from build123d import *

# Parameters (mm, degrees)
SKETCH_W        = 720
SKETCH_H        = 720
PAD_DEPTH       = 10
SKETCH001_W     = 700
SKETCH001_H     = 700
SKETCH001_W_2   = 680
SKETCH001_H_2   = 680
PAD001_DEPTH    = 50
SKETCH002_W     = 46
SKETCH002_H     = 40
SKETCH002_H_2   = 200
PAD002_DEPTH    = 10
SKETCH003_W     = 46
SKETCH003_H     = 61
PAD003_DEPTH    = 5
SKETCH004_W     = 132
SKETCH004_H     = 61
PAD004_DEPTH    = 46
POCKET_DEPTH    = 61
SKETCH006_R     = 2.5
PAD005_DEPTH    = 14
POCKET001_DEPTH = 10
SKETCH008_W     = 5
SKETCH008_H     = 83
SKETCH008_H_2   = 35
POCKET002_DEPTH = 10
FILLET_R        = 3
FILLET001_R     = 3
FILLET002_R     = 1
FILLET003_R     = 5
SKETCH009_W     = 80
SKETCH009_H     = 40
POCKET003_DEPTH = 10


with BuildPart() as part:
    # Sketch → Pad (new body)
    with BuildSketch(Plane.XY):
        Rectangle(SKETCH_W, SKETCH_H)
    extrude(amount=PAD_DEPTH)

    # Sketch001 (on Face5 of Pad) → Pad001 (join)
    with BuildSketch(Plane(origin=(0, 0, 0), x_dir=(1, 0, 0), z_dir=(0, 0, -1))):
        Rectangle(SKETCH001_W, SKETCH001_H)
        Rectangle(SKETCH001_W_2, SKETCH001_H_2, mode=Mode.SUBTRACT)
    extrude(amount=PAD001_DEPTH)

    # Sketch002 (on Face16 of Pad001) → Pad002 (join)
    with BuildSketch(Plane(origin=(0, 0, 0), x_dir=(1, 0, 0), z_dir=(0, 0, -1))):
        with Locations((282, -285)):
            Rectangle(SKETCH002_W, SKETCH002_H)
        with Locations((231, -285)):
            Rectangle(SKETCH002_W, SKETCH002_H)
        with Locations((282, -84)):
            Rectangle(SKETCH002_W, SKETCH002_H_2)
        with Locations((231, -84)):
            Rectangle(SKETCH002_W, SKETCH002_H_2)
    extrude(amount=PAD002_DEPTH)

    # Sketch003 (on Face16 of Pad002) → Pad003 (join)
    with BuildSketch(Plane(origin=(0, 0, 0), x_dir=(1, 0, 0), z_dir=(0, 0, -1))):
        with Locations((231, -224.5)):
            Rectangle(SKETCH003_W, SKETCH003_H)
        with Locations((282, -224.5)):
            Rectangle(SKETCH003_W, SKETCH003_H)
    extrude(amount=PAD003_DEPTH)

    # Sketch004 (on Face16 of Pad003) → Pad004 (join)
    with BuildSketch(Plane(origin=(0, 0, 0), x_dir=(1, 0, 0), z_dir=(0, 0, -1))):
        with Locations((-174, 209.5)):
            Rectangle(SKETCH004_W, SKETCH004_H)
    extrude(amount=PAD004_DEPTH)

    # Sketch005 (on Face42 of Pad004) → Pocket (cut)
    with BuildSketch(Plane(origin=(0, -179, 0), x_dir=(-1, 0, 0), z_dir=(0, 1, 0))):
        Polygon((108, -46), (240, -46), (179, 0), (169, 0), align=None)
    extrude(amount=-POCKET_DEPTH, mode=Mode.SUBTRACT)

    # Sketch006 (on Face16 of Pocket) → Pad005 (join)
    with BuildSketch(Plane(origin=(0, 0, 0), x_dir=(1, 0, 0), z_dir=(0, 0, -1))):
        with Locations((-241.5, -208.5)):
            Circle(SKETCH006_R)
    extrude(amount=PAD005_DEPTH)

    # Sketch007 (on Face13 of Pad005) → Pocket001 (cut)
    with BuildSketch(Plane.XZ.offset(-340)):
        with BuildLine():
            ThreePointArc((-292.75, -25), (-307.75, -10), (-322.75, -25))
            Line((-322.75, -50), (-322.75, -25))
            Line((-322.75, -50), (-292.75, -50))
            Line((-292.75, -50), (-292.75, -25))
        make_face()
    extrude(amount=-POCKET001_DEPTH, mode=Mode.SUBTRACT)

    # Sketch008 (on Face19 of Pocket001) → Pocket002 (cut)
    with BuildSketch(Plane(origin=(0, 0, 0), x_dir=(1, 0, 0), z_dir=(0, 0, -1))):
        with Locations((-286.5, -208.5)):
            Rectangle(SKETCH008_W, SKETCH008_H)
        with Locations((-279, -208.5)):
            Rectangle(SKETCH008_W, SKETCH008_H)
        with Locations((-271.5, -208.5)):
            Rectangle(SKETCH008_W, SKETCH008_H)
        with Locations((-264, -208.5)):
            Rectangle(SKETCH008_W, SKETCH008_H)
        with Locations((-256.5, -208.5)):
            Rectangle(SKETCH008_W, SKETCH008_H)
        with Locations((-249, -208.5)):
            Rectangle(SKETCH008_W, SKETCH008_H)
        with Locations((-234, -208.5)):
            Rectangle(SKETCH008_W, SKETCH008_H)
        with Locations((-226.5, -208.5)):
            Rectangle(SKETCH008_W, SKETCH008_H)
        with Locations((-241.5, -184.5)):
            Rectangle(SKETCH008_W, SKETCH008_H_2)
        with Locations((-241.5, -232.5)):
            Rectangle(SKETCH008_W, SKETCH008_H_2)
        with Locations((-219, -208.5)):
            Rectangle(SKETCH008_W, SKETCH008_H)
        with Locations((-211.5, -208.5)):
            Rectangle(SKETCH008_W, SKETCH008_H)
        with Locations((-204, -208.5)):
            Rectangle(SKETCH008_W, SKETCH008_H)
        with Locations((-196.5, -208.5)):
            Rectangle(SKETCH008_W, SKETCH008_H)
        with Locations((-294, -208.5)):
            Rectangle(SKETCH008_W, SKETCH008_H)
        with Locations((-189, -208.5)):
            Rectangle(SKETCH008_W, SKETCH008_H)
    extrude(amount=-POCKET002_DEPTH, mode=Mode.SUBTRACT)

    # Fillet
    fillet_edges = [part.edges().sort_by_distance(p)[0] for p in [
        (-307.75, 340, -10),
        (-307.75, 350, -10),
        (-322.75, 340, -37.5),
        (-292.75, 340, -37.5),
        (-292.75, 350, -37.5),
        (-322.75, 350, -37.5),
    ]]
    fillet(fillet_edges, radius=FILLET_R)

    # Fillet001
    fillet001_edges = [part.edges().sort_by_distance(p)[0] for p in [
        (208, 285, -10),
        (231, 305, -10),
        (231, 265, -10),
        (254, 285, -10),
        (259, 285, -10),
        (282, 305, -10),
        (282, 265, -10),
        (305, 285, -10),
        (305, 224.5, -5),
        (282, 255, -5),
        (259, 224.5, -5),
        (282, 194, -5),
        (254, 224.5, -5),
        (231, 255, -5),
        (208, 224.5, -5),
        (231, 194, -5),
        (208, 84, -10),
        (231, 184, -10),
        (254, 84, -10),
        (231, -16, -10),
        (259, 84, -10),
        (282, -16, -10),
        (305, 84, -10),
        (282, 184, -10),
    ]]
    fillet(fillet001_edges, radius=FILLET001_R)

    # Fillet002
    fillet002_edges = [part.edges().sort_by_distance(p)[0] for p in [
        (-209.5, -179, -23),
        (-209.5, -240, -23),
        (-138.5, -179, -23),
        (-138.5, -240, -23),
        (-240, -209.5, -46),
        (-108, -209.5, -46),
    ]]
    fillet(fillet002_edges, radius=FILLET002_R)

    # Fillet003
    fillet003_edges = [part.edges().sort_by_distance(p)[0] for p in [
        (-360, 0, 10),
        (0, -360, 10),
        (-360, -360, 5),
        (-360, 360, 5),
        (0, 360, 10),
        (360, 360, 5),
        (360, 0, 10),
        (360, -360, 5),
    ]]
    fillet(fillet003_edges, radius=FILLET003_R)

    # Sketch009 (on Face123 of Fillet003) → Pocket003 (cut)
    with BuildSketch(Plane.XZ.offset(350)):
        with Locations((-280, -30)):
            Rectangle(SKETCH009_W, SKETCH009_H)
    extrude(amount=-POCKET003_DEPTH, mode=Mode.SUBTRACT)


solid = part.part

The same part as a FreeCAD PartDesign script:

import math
import FreeCAD as App
import Part
import Sketcher


def edges_at(feature, points):
    """Names of the edges that pass closest to the given points."""
    edges = feature.Shape.Edges
    near = lambda p: min(range(len(edges)), key=lambda i: edges[i].distToShape(Part.Vertex(*p))[0])
    return sorted({f"Edge{near(p) + 1}" for p in points})


def add_polygon(sketch, points):
    """Adds a closed chain of lines whose ends are joined by coincident constraints."""
    first, n = sketch.GeometryCount, len(points)
    for a, b in zip(points, points[1:] + points[:1]):
        sketch.addGeometry(Part.LineSegment(App.Vector(*a, 0), App.Vector(*b, 0)), False)
    for i in range(n):
        sketch.addConstraint(Sketcher.Constraint("Coincident", first + i, 2, first + (i + 1) % n, 1))

doc = App.newDocument("Part")
params = doc.addObject("Spreadsheet::Sheet", "Params")
for row, (alias, value) in enumerate([
    ("sketch1_width", "720 mm"),
    ("pad1_length", "10 mm"),
    ("sketch2_width", "700 mm"),
    ("sketch2_width2", "680 mm"),
    ("pad2_length", "50 mm"),
    ("sketch3_width", "46 mm"),
    ("sketch3_height", "40 mm"),
    ("sketch3_height2", "200 mm"),
    ("pad3_length", "10 mm"),
    ("sketch4_width", "46 mm"),
    ("sketch4_height", "61 mm"),
    ("pad4_length", "5 mm"),
    ("sketch5_width", "132 mm"),
    ("sketch5_height", "61 mm"),
    ("pad5_length", "46 mm"),
    ("sketch6_width", "132 mm"),
    ("sketch6_width2", "10 mm"),
    ("pocket1_length", "61 mm"),
    ("sketch7_diameter", "5 mm"),
    ("pad6_length", "14 mm"),
    ("sketch8_radius", "15 mm"),
    ("sketch8_height", "25 mm"),
    ("pocket2_length", "10 mm"),
    ("sketch9_width", "5 mm"),
    ("sketch9_height", "83 mm"),
    ("sketch9_height2", "35 mm"),
    ("pocket3_length", "10 mm"),
    ("fillet_radius", "3 mm"),
    ("fillet2_radius", "3 mm"),
    ("fillet3_radius", "1 mm"),
    ("fillet4_radius", "5 mm"),
    ("sketch10_width", "80 mm"),
    ("sketch10_height", "40 mm"),
    ("pocket4_length", "10 mm"),
], start=1):
    params.set(f"A{row}", alias)
    params.set(f"B{row}", "=" + value)
    params.setAlias(f"B{row}", alias)

body = doc.addObject("PartDesign::Body", "Body")

# Sketch on XY plane
sketch1 = doc.addObject("Sketcher::SketchObject", "Sketch")
body.addObject(sketch1)
sketch1.AttachmentSupport = (doc.XY_Plane, [""])
sketch1.MapMode = "FlatFace"
add_polygon(sketch1, [(-360, 360), (-360, -360), (360, -360), (360, 360)])  # lines 0-3
sketch1.addConstraint([
    Sketcher.Constraint("Vertical", 0),
    Sketcher.Constraint("Horizontal", 1),
    Sketcher.Constraint("Vertical", 2),
    Sketcher.Constraint("Horizontal", 3),
    Sketcher.Constraint("Symmetric", 0, 2, 2, 2, -1, 1),
    Sketcher.Constraint("Equal", 3, 0),
    Sketcher.Constraint("DistanceX", 1, 1, 1, 2, 720.0),
])
sketch1.setExpression("Constraints[10]", "Params.sketch1_width")
pad1 = doc.addObject("PartDesign::Pad", "Pad")
body.addObject(pad1)
pad1.Profile = sketch1
pad1.setExpression("Length", "Params.pad1_length")

# Sketch on XY plane
sketch2 = doc.addObject("Sketcher::SketchObject", "Sketch001")
body.addObject(sketch2)
sketch2.AttachmentSupport = (doc.XY_Plane, [""])
sketch2.MapMode = "FlatFace"
add_polygon(sketch2, [(-350, -350), (-350, 350), (350, 350), (350, -350)])  # lines 0-3
add_polygon(sketch2, [(340, 340), (-340, 340), (-340, -340), (340, -340)])  # lines 4-7
sketch2.addConstraint([
    Sketcher.Constraint("Vertical", 0),
    Sketcher.Constraint("Horizontal", 1),
    Sketcher.Constraint("Vertical", 2),
    Sketcher.Constraint("Horizontal", 3),
    Sketcher.Constraint("Horizontal", 4),
    Sketcher.Constraint("Vertical", 5),
    Sketcher.Constraint("Horizontal", 6),
    Sketcher.Constraint("Vertical", 7),
    Sketcher.Constraint("Symmetric", 0, 2, 2, 2, -1, 1),
    Sketcher.Constraint("Symmetric", 4, 2, 6, 2, -1, 1),
    Sketcher.Constraint("Equal", 3, 0),
    Sketcher.Constraint("Equal", 6, 5),
    Sketcher.Constraint("DistanceX", 1, 1, 1, 2, 700.0),
    Sketcher.Constraint("DistanceX", 4, 2, 4, 1, 680.0),
])
sketch2.setExpression("Constraints[20]", "Params.sketch2_width")
sketch2.setExpression("Constraints[21]", "Params.sketch2_width2")
pad2 = doc.addObject("PartDesign::Pad", "Pad001")
body.addObject(pad2)
pad2.Profile = sketch2
pad2.setExpression("Length", "Params.pad2_length")
pad2.Reversed = True

# Sketch on XY plane
sketch3 = doc.addObject("Sketcher::SketchObject", "Sketch002")
body.addObject(sketch3)
sketch3.AttachmentSupport = (doc.XY_Plane, [""])
sketch3.MapMode = "FlatFace"
add_polygon(sketch3, [(259, 265), (259, 305), (305, 305), (305, 265)])  # lines 0-3
add_polygon(sketch3, [(208, 265), (208, 305), (254, 305), (254, 265)])  # lines 4-7
add_polygon(sketch3, [(259, -16), (259, 184), (305, 184), (305, -16)])  # lines 8-11
add_polygon(sketch3, [(208, -16), (208, 184), (254, 184), (254, -16)])  # lines 12-15
sketch3.addConstraint([
    Sketcher.Constraint("Vertical", 0),
    Sketcher.Constraint("Horizontal", 1),
    Sketcher.Constraint("Vertical", 2),
    Sketcher.Constraint("Horizontal", 3),
    Sketcher.Constraint("Vertical", 4),
    Sketcher.Constraint("Horizontal", 5),
    Sketcher.Constraint("Vertical", 6),
    Sketcher.Constraint("Horizontal", 7),
    Sketcher.Constraint("Vertical", 8),
    Sketcher.Constraint("Horizontal", 9),
    Sketcher.Constraint("Vertical", 10),
    Sketcher.Constraint("Horizontal", 11),
    Sketcher.Constraint("Vertical", 12),
    Sketcher.Constraint("Horizontal", 13),
    Sketcher.Constraint("Vertical", 14),
    Sketcher.Constraint("Horizontal", 15),
    Sketcher.Constraint("Horizontal", 1, 2, 4, 2),
    Sketcher.Constraint("Horizontal", 3, 2, 6, 2),
    Sketcher.Constraint("Horizontal", 9, 2, 12, 2),
    Sketcher.Constraint("Horizontal", 11, 2, 14, 2),
    Sketcher.Constraint("Vertical", 3, 2, 8, 2),
    Sketcher.Constraint("Vertical", 2, 2, 9, 2),
    Sketcher.Constraint("Vertical", 7, 2, 12, 2),
    Sketcher.Constraint("Vertical", 6, 2, 13, 2),
    Sketcher.Constraint("Equal", 3, 5),
    Sketcher.Constraint("DistanceX", 1, 1, 1, 2, 46.0),
    Sketcher.Constraint("DistanceY", 0, 1, 0, 2, 40.0),
    Sketcher.Constraint("DistanceY", 8, 1, 8, 2, 200.0),
    Sketcher.Constraint("DistanceX", -1, 1, 0, 2, 259.0),
    Sketcher.Constraint("DistanceY", -1, 1, 0, 2, 305.0),
    Sketcher.Constraint("DistanceX", -1, 1, 4, 2, 208.0),
    Sketcher.Constraint("DistanceY", -1, 1, 8, 2, 184.0),
])
sketch3.setExpression("Constraints[41]", "Params.sketch3_width")
sketch3.setExpression("Constraints[42]", "Params.sketch3_height")
sketch3.setExpression("Constraints[43]", "Params.sketch3_height2")
pad3 = doc.addObject("PartDesign::Pad", "Pad002")
body.addObject(pad3)
pad3.Profile = sketch3
pad3.setExpression("Length", "Params.pad3_length")
pad3.Reversed = True

# Sketch on XY plane
sketch4 = doc.addObject("Sketcher::SketchObject", "Sketch003")
body.addObject(sketch4)
sketch4.AttachmentSupport = (doc.XY_Plane, [""])
sketch4.MapMode = "FlatFace"
add_polygon(sketch4, [(208, 194), (208, 255), (254, 255), (254, 194)])  # lines 0-3
add_polygon(sketch4, [(259, 194), (259, 255), (305, 255), (305, 194)])  # lines 4-7
sketch4.addConstraint([
    Sketcher.Constraint("Vertical", 0),
    Sketcher.Constraint("Horizontal", 1),
    Sketcher.Constraint("Vertical", 2),
    Sketcher.Constraint("Horizontal", 3),
    Sketcher.Constraint("Vertical", 4),
    Sketcher.Constraint("Horizontal", 5),
    Sketcher.Constraint("Vertical", 6),
    Sketcher.Constraint("Horizontal", 7),
    Sketcher.Constraint("Horizontal", 1, 2, 4, 2),
    Sketcher.Constraint("Horizontal", 3, 2, 6, 2),
    Sketcher.Constraint("Equal", 3, 5),
    Sketcher.Constraint("DistanceX", 1, 1, 1, 2, 46.0),
    Sketcher.Constraint("DistanceY", 0, 1, 0, 2, 61.0),
    Sketcher.Constraint("DistanceX", -1, 1, 0, 2, 208.0),
    Sketcher.Constraint("DistanceY", -1, 1, 0, 2, 255.0),
    Sketcher.Constraint("DistanceX", -1, 1, 4, 2, 259.0),
])
sketch4.setExpression("Constraints[19]", "Params.sketch4_width")
sketch4.setExpression("Constraints[20]", "Params.sketch4_height")
pad4 = doc.addObject("PartDesign::Pad", "Pad003")
body.addObject(pad4)
pad4.Profile = sketch4
pad4.setExpression("Length", "Params.pad4_length")
pad4.Reversed = True

# Sketch on XY plane
sketch5 = doc.addObject("Sketcher::SketchObject", "Sketch004")
body.addObject(sketch5)
sketch5.AttachmentSupport = (doc.XY_Plane, [""])
sketch5.MapMode = "FlatFace"
add_polygon(sketch5, [(-240, -240), (-240, -179), (-108, -179), (-108, -240)])  # lines 0-3
sketch5.addConstraint([
    Sketcher.Constraint("Vertical", 0),
    Sketcher.Constraint("Horizontal", 1),
    Sketcher.Constraint("Vertical", 2),
    Sketcher.Constraint("Horizontal", 3),
    Sketcher.Constraint("DistanceX", 1, 1, 1, 2, 132.0),
    Sketcher.Constraint("DistanceY", 0, 1, 0, 2, 61.0),
    Sketcher.Constraint("DistanceX", 0, 2, -1, 1, 240.0),
    Sketcher.Constraint("DistanceY", 0, 2, -1, 1, 179.0),
])
sketch5.setExpression("Constraints[8]", "Params.sketch5_width")
sketch5.setExpression("Constraints[9]", "Params.sketch5_height")
pad5 = doc.addObject("PartDesign::Pad", "Pad004")
body.addObject(pad5)
pad5.Profile = sketch5
pad5.setExpression("Length", "Params.pad5_length")
pad5.Reversed = True

# Sketch on XZ plane
sketch6 = doc.addObject("Sketcher::SketchObject", "Sketch005")
body.addObject(sketch6)
sketch6.AttachmentSupport = (doc.XZ_Plane, [""])
sketch6.MapMode = "FlatFace"
sketch6.AttachmentOffset = App.Placement(App.Vector(0, 0, 179), App.Rotation())
add_polygon(sketch6, [(-108, -46), (-240, -46), (-179, 0), (-169, 0)])  # lines 0-3
sketch6.addConstraint([
    Sketcher.Constraint("Horizontal", 0),
    Sketcher.Constraint("Horizontal", 2),
    Sketcher.Constraint("PointOnObject", 1, 2, -1),
    Sketcher.Constraint("Equal", 1, 3),
    Sketcher.Constraint("DistanceX", 0, 2, 0, 1, 132.0),
    Sketcher.Constraint("DistanceX", 2, 1, 2, 2, 10.0),
    Sketcher.Constraint("DistanceX", 0, 2, -1, 1, 240.0),
    Sketcher.Constraint("DistanceY", 0, 2, -1, 1, 46.0),
])
sketch6.setExpression("Constraints[8]", "Params.sketch6_width")
sketch6.setExpression("Constraints[9]", "Params.sketch6_width2")
pocket1 = doc.addObject("PartDesign::Pocket", "Pocket")
body.addObject(pocket1)
pocket1.Profile = sketch6
pocket1.setExpression("Length", "Params.pocket1_length")
pocket1.Reversed = True

# Sketch on XY plane
sketch7 = doc.addObject("Sketcher::SketchObject", "Sketch006")
body.addObject(sketch7)
sketch7.AttachmentSupport = (doc.XY_Plane, [""])
sketch7.MapMode = "FlatFace"
sketch7.addGeometry(Part.Circle(App.Vector(-241.5, 208.5, 0), App.Vector(0, 0, 1), 2.5), False)
sketch7.addConstraint([
    Sketcher.Constraint("Diameter", 0, 5.0),
    Sketcher.Constraint("DistanceX", 0, 3, -1, 1, 241.5),
    Sketcher.Constraint("DistanceY", -1, 1, 0, 3, 208.5),
])
sketch7.setExpression("Constraints[0]", "Params.sketch7_diameter")
pad6 = doc.addObject("PartDesign::Pad", "Pad005")
body.addObject(pad6)
pad6.Profile = sketch7
pad6.setExpression("Length", "Params.pad6_length")
pad6.Reversed = True

# Sketch on XZ plane
sketch8 = doc.addObject("Sketcher::SketchObject", "Sketch007")
body.addObject(sketch8)
sketch8.AttachmentSupport = (doc.XZ_Plane, [""])
sketch8.MapMode = "FlatFace"
sketch8.AttachmentOffset = App.Placement(App.Vector(0, 0, -340), App.Rotation())
sketch8.addGeometry([
    Part.ArcOfCircle(Part.Circle(App.Vector(-308, -25, 0), App.Vector(0, 0, 1), 15), math.radians(0), math.radians(180)),
    Part.LineSegment(App.Vector(-323, -25, 0), App.Vector(-323, -50, 0)),
    Part.LineSegment(App.Vector(-323, -50, 0), App.Vector(-293, -50, 0)),
    Part.LineSegment(App.Vector(-293, -50, 0), App.Vector(-293, -25, 0)),
], False)
sketch8.addConstraint([
    Sketcher.Constraint("Tangent", 0, 2, 1, 1),
    Sketcher.Constraint("Coincident", 1, 2, 2, 1),
    Sketcher.Constraint("Coincident", 2, 2, 3, 1),
    Sketcher.Constraint("Tangent", 3, 2, 0, 1),
    Sketcher.Constraint("Vertical", 1),
    Sketcher.Constraint("Horizontal", 2),
    Sketcher.Constraint("Vertical", 3),
    Sketcher.Constraint("Radius", 0, 15.0),
    Sketcher.Constraint("DistanceY", 1, 2, 1, 1, 25.0),
    Sketcher.Constraint("DistanceY", 0, 3, -1, 1, 25.0),
    Sketcher.Constraint("DistanceX", 0, 3, -1, 1, 307.75),
])
sketch8.setExpression("Constraints[7]", "Params.sketch8_radius")
sketch8.setExpression("Constraints[8]", "Params.sketch8_height")
pocket2 = doc.addObject("PartDesign::Pocket", "Pocket001")
body.addObject(pocket2)
pocket2.Profile = sketch8
pocket2.setExpression("Length", "Params.pocket2_length")

# Sketch on XY plane
sketch9 = doc.addObject("Sketcher::SketchObject", "Sketch008")
body.addObject(sketch9)
sketch9.AttachmentSupport = (doc.XY_Plane, [""])
sketch9.MapMode = "FlatFace"
add_polygon(sketch9, [(-289, 167), (-289, 250), (-284, 250), (-284, 167)])  # lines 0-3
add_polygon(sketch9, [(-282, 167), (-282, 250), (-276, 250), (-276, 167)])  # lines 4-7
add_polygon(sketch9, [(-274, 167), (-274, 250), (-269, 250), (-269, 167)])  # lines 8-11
add_polygon(sketch9, [(-266, 167), (-266, 250), (-262, 250), (-262, 167)])  # lines 12-15
add_polygon(sketch9, [(-259, 167), (-259, 250), (-254, 250), (-254, 167)])  # lines 16-19
add_polygon(sketch9, [(-252, 167), (-252, 250), (-246, 250), (-246, 167)])  # lines 20-23
add_polygon(sketch9, [(-236, 167), (-236, 250), (-232, 250), (-232, 167)])  # lines 24-27
add_polygon(sketch9, [(-229, 167), (-229, 250), (-224, 250), (-224, 167)])  # lines 28-31
add_polygon(sketch9, [(-244, 167), (-244, 202), (-239, 202), (-239, 167)])  # lines 32-35
add_polygon(sketch9, [(-244, 215), (-244, 250), (-239, 250), (-239, 215)])  # lines 36-39
add_polygon(sketch9, [(-222, 167), (-222, 250), (-216, 250), (-216, 167)])  # lines 40-43
add_polygon(sketch9, [(-214, 167), (-214, 250), (-209, 250), (-209, 167)])  # lines 44-47
add_polygon(sketch9, [(-206, 167), (-206, 250), (-202, 250), (-202, 167)])  # lines 48-51
add_polygon(sketch9, [(-199, 167), (-199, 250), (-194, 250), (-194, 167)])  # lines 52-55
add_polygon(sketch9, [(-296, 167), (-296, 250), (-292, 250), (-292, 167)])  # lines 56-59
add_polygon(sketch9, [(-192, 167), (-192, 250), (-186, 250), (-186, 167)])  # lines 60-63
sketch9.addConstraint([
    Sketcher.Constraint("Vertical", 0),
    Sketcher.Constraint("Horizontal", 1),
    Sketcher.Constraint("Vertical", 2),
    Sketcher.Constraint("Horizontal", 3),
    Sketcher.Constraint("Vertical", 4),
    Sketcher.Constraint("Horizontal", 5),
    Sketcher.Constraint("Vertical", 6),
    Sketcher.Constraint("Horizontal", 7),
    Sketcher.Constraint("Vertical", 8),
    Sketcher.Constraint("Horizontal", 9),
    Sketcher.Constraint("Vertical", 10),
    Sketcher.Constraint("Horizontal", 11),
    Sketcher.Constraint("Vertical", 12),
    Sketcher.Constraint("Horizontal", 13),
    Sketcher.Constraint("Vertical", 14),
    Sketcher.Constraint("Horizontal", 15),
    Sketcher.Constraint("Vertical", 16),
    Sketcher.Constraint("Horizontal", 17),
    Sketcher.Constraint("Vertical", 18),
    Sketcher.Constraint("Horizontal", 19),
    Sketcher.Constraint("Vertical", 20),
    Sketcher.Constraint("Horizontal", 21),
    Sketcher.Constraint("Vertical", 22),
    Sketcher.Constraint("Horizontal", 23),
    Sketcher.Constraint("Vertical", 24),
    Sketcher.Constraint("Horizontal", 25),
    Sketcher.Constraint("Vertical", 26),
    Sketcher.Constraint("Horizontal", 27),
    Sketcher.Constraint("Vertical", 28),
    Sketcher.Constraint("Horizontal", 29),
    Sketcher.Constraint("Vertical", 30),
    Sketcher.Constraint("Horizontal", 31),
    Sketcher.Constraint("Vertical", 32),
    Sketcher.Constraint("Horizontal", 33),
    Sketcher.Constraint("Vertical", 34),
    Sketcher.Constraint("Horizontal", 35),
    Sketcher.Constraint("Vertical", 36),
    Sketcher.Constraint("Horizontal", 37),
    Sketcher.Constraint("Vertical", 38),
    Sketcher.Constraint("Horizontal", 39),
    Sketcher.Constraint("Vertical", 40),
    Sketcher.Constraint("Horizontal", 41),
    Sketcher.Constraint("Vertical", 42),
    Sketcher.Constraint("Horizontal", 43),
    Sketcher.Constraint("Vertical", 44),
    Sketcher.Constraint("Horizontal", 45),
    Sketcher.Constraint("Vertical", 46),
    Sketcher.Constraint("Horizontal", 47),
    Sketcher.Constraint("Vertical", 48),
    Sketcher.Constraint("Horizontal", 49),
    Sketcher.Constraint("Vertical", 50),
    Sketcher.Constraint("Horizontal", 51),
    Sketcher.Constraint("Vertical", 52),
    Sketcher.Constraint("Horizontal", 53),
    Sketcher.Constraint("Vertical", 54),
    Sketcher.Constraint("Horizontal", 55),
    Sketcher.Constraint("Vertical", 56),
    Sketcher.Constraint("Horizontal", 57),
    Sketcher.Constraint("Vertical", 58),
    Sketcher.Constraint("Horizontal", 59),
    Sketcher.Constraint("Vertical", 60),
    Sketcher.Constraint("Horizontal", 61),
    Sketcher.Constraint("Vertical", 62),
    Sketcher.Constraint("Horizontal", 63),
    Sketcher.Constraint("Horizontal", 1, 2, 4, 2),
    Sketcher.Constraint("Horizontal", 3, 2, 6, 2),
    Sketcher.Constraint("Horizontal", 5, 2, 8, 2),
    Sketcher.Constraint("Horizontal", 7, 2, 10, 2),
    Sketcher.Constraint("Horizontal", 9, 2, 12, 2),
    Sketcher.Constraint("Horizontal", 11, 2, 14, 2),
    Sketcher.Constraint("Horizontal", 13, 2, 16, 2),
    Sketcher.Constraint("Horizontal", 15, 2, 18, 2),
    Sketcher.Constraint("Horizontal", 17, 2, 20, 2),
    Sketcher.Constraint("Horizontal", 19, 2, 22, 2),
    Sketcher.Constraint("Horizontal", 21, 2, 24, 2),
    Sketcher.Constraint("Horizontal", 23, 2, 26, 2),
    Sketcher.Constraint("Horizontal", 25, 2, 28, 2),
    Sketcher.Constraint("Horizontal", 27, 2, 30, 2),
    Sketcher.Constraint("Horizontal", 31, 2, 34, 2),
    Sketcher.Constraint("Horizontal", 29, 2, 36, 2),
    Sketcher.Constraint("Horizontal", 37, 2, 40, 2),
    Sketcher.Constraint("Horizontal", 35, 2, 42, 2),
    Sketcher.Constraint("Horizontal", 41, 2, 44, 2),
    Sketcher.Constraint("Horizontal", 43, 2, 46, 2),
    Sketcher.Constraint("Horizontal", 45, 2, 48, 2),
    Sketcher.Constraint("Horizontal", 47, 2, 50, 2),
    Sketcher.Constraint("Horizontal", 49, 2, 52, 2),
    Sketcher.Constraint("Horizontal", 51, 2, 54, 2),
    Sketcher.Constraint("Horizontal", 53, 2, 56, 2),
    Sketcher.Constraint("Horizontal", 55, 2, 58, 2),
    Sketcher.Constraint("Horizontal", 57, 2, 60, 2),
    Sketcher.Constraint("Horizontal", 59, 2, 62, 2),
    Sketcher.Constraint("Vertical", 35, 2, 36, 2),
    Sketcher.Constraint("Vertical", 34, 2, 37, 2),
    Sketcher.Constraint("Equal", 3, 5),
    Sketcher.Constraint("Equal", 7, 9),
    Sketcher.Constraint("Equal", 11, 13),
    Sketcher.Constraint("Equal", 15, 17),
    Sketcher.Constraint("Equal", 19, 21),
    Sketcher.Constraint("Equal", 23, 25),
    Sketcher.Constraint("Equal", 27, 29),
    Sketcher.Constraint("Equal", 31, 33),
    Sketcher.Constraint("Equal", 39, 41),
    Sketcher.Constraint("Equal", 43, 45),
    Sketcher.Constraint("Equal", 47, 49),
    Sketcher.Constraint("Equal", 51, 53),
    Sketcher.Constraint("Equal", 55, 57),
    Sketcher.Constraint("Equal", 59, 61),
    Sketcher.Constraint("Equal", 34, 36),
    Sketcher.Constraint("DistanceX", 1, 1, 1, 2, 5.0),
    Sketcher.Constraint("DistanceY", 0, 1, 0, 2, 83.0),
    Sketcher.Constraint("DistanceY", 32, 1, 32, 2, 35.0),
    Sketcher.Constraint("DistanceX", 0, 2, -1, 1, 289.0),
    Sketcher.Constraint("DistanceY", -1, 1, 0, 2, 250.0),
    Sketcher.Constraint("DistanceX", 8, 2, -1, 1, 274.0),
    Sketcher.Constraint("DistanceX", 16, 2, -1, 1, 259.0),
    Sketcher.Constraint("DistanceX", 28, 2, -1, 1, 229.0),
    Sketcher.Constraint("DistanceX", 32, 2, -1, 1, 244.0),
    Sketcher.Constraint("DistanceX", 44, 2, -1, 1, 214.0),
    Sketcher.Constraint("DistanceX", 52, 2, -1, 1, 199.0),
    Sketcher.Constraint("DistanceX", 4, 2, -1, 1, 281.5),
    Sketcher.Constraint("DistanceX", 12, 2, -1, 1, 266.5),
    Sketcher.Constraint("DistanceX", 20, 2, -1, 1, 251.5),
    Sketcher.Constraint("DistanceX", 24, 2, -1, 1, 236.5),
    Sketcher.Constraint("DistanceX", 40, 2, -1, 1, 221.5),
    Sketcher.Constraint("DistanceX", 48, 2, -1, 1, 206.5),
    Sketcher.Constraint("DistanceX", 56, 2, -1, 1, 296.5),
    Sketcher.Constraint("DistanceX", 60, 2, -1, 1, 191.5),
])
sketch9.setExpression("Constraints[173]", "Params.sketch9_width")
sketch9.setExpression("Constraints[174]", "Params.sketch9_height")
sketch9.setExpression("Constraints[175]", "Params.sketch9_height2")
pocket3 = doc.addObject("PartDesign::Pocket", "Pocket002")
body.addObject(pocket3)
pocket3.Profile = sketch9
pocket3.setExpression("Length", "Params.pocket3_length")
pocket3.Reversed = True
doc.recompute()

fillet = doc.addObject("PartDesign::Fillet", "Fillet")
body.addObject(fillet)
fillet.Base = (pocket3, edges_at(pocket3, [
    (-307.75, 340, -10),
    (-307.75, 350, -10),
    (-322.75, 340, -37.5),
    (-292.75, 340, -37.5),
    (-292.75, 350, -37.5),
    (-322.75, 350, -37.5),
]))
fillet.setExpression("Radius", "Params.fillet_radius")
doc.recompute()

fillet2 = doc.addObject("PartDesign::Fillet", "Fillet001")
body.addObject(fillet2)
fillet2.Base = (fillet, edges_at(fillet, [
    (208, 285, -10),
    (231, 305, -10),
    (231, 265, -10),
    (254, 285, -10),
    (259, 285, -10),
    (282, 305, -10),
    (282, 265, -10),
    (305, 285, -10),
    (305, 224.5, -5),
    (282, 255, -5),
    (259, 224.5, -5),
    (282, 194, -5),
    (254, 224.5, -5),
    (231, 255, -5),
    (208, 224.5, -5),
    (231, 194, -5),
    (208, 84, -10),
    (231, 184, -10),
    (254, 84, -10),
    (231, -16, -10),
    (259, 84, -10),
    (282, -16, -10),
    (305, 84, -10),
    (282, 184, -10),
]))
fillet2.setExpression("Radius", "Params.fillet2_radius")
doc.recompute()

fillet3 = doc.addObject("PartDesign::Fillet", "Fillet002")
body.addObject(fillet3)
fillet3.Base = (fillet2, edges_at(fillet2, [
    (-209.5, -179, -23),
    (-209.5, -240, -23),
    (-138.5, -179, -23),
    (-138.5, -240, -23),
    (-240, -209.5, -46),
    (-108, -209.5, -46),
]))
fillet3.setExpression("Radius", "Params.fillet3_radius")
doc.recompute()

fillet4 = doc.addObject("PartDesign::Fillet", "Fillet003")
body.addObject(fillet4)
fillet4.Base = (fillet3, edges_at(fillet3, [
    (-360, 0, 10),
    (0, -360, 10),
    (-360, -360, 5),
    (-360, 360, 5),
    (0, 360, 10),
    (360, 360, 5),
    (360, 0, 10),
    (360, -360, 5),
]))
fillet4.setExpression("Radius", "Params.fillet4_radius")

# Sketch on XZ plane
sketch10 = doc.addObject("Sketcher::SketchObject", "Sketch009")
body.addObject(sketch10)
sketch10.AttachmentSupport = (doc.XZ_Plane, [""])
sketch10.MapMode = "FlatFace"
sketch10.AttachmentOffset = App.Placement(App.Vector(0, 0, 350), App.Rotation())
add_polygon(sketch10, [(-320, -10), (-320, -50), (-240, -50), (-240, -10)])  # lines 0-3
sketch10.addConstraint([
    Sketcher.Constraint("Vertical", 0),
    Sketcher.Constraint("Horizontal", 1),
    Sketcher.Constraint("Vertical", 2),
    Sketcher.Constraint("Horizontal", 3),
    Sketcher.Constraint("DistanceX", 1, 1, 1, 2, 80.0),
    Sketcher.Constraint("DistanceY", 0, 2, 0, 1, 40.0),
    Sketcher.Constraint("DistanceX", 0, 2, -1, 1, 320.0),
    Sketcher.Constraint("DistanceY", 0, 2, -1, 1, 50.0),
])
sketch10.setExpression("Constraints[8]", "Params.sketch10_width")
sketch10.setExpression("Constraints[9]", "Params.sketch10_height")
pocket4 = doc.addObject("PartDesign::Pocket", "Pocket003")
body.addObject(pocket4)
pocket4.Profile = sketch10
pocket4.setExpression("Length", "Params.pocket4_length")

doc.recompute()
